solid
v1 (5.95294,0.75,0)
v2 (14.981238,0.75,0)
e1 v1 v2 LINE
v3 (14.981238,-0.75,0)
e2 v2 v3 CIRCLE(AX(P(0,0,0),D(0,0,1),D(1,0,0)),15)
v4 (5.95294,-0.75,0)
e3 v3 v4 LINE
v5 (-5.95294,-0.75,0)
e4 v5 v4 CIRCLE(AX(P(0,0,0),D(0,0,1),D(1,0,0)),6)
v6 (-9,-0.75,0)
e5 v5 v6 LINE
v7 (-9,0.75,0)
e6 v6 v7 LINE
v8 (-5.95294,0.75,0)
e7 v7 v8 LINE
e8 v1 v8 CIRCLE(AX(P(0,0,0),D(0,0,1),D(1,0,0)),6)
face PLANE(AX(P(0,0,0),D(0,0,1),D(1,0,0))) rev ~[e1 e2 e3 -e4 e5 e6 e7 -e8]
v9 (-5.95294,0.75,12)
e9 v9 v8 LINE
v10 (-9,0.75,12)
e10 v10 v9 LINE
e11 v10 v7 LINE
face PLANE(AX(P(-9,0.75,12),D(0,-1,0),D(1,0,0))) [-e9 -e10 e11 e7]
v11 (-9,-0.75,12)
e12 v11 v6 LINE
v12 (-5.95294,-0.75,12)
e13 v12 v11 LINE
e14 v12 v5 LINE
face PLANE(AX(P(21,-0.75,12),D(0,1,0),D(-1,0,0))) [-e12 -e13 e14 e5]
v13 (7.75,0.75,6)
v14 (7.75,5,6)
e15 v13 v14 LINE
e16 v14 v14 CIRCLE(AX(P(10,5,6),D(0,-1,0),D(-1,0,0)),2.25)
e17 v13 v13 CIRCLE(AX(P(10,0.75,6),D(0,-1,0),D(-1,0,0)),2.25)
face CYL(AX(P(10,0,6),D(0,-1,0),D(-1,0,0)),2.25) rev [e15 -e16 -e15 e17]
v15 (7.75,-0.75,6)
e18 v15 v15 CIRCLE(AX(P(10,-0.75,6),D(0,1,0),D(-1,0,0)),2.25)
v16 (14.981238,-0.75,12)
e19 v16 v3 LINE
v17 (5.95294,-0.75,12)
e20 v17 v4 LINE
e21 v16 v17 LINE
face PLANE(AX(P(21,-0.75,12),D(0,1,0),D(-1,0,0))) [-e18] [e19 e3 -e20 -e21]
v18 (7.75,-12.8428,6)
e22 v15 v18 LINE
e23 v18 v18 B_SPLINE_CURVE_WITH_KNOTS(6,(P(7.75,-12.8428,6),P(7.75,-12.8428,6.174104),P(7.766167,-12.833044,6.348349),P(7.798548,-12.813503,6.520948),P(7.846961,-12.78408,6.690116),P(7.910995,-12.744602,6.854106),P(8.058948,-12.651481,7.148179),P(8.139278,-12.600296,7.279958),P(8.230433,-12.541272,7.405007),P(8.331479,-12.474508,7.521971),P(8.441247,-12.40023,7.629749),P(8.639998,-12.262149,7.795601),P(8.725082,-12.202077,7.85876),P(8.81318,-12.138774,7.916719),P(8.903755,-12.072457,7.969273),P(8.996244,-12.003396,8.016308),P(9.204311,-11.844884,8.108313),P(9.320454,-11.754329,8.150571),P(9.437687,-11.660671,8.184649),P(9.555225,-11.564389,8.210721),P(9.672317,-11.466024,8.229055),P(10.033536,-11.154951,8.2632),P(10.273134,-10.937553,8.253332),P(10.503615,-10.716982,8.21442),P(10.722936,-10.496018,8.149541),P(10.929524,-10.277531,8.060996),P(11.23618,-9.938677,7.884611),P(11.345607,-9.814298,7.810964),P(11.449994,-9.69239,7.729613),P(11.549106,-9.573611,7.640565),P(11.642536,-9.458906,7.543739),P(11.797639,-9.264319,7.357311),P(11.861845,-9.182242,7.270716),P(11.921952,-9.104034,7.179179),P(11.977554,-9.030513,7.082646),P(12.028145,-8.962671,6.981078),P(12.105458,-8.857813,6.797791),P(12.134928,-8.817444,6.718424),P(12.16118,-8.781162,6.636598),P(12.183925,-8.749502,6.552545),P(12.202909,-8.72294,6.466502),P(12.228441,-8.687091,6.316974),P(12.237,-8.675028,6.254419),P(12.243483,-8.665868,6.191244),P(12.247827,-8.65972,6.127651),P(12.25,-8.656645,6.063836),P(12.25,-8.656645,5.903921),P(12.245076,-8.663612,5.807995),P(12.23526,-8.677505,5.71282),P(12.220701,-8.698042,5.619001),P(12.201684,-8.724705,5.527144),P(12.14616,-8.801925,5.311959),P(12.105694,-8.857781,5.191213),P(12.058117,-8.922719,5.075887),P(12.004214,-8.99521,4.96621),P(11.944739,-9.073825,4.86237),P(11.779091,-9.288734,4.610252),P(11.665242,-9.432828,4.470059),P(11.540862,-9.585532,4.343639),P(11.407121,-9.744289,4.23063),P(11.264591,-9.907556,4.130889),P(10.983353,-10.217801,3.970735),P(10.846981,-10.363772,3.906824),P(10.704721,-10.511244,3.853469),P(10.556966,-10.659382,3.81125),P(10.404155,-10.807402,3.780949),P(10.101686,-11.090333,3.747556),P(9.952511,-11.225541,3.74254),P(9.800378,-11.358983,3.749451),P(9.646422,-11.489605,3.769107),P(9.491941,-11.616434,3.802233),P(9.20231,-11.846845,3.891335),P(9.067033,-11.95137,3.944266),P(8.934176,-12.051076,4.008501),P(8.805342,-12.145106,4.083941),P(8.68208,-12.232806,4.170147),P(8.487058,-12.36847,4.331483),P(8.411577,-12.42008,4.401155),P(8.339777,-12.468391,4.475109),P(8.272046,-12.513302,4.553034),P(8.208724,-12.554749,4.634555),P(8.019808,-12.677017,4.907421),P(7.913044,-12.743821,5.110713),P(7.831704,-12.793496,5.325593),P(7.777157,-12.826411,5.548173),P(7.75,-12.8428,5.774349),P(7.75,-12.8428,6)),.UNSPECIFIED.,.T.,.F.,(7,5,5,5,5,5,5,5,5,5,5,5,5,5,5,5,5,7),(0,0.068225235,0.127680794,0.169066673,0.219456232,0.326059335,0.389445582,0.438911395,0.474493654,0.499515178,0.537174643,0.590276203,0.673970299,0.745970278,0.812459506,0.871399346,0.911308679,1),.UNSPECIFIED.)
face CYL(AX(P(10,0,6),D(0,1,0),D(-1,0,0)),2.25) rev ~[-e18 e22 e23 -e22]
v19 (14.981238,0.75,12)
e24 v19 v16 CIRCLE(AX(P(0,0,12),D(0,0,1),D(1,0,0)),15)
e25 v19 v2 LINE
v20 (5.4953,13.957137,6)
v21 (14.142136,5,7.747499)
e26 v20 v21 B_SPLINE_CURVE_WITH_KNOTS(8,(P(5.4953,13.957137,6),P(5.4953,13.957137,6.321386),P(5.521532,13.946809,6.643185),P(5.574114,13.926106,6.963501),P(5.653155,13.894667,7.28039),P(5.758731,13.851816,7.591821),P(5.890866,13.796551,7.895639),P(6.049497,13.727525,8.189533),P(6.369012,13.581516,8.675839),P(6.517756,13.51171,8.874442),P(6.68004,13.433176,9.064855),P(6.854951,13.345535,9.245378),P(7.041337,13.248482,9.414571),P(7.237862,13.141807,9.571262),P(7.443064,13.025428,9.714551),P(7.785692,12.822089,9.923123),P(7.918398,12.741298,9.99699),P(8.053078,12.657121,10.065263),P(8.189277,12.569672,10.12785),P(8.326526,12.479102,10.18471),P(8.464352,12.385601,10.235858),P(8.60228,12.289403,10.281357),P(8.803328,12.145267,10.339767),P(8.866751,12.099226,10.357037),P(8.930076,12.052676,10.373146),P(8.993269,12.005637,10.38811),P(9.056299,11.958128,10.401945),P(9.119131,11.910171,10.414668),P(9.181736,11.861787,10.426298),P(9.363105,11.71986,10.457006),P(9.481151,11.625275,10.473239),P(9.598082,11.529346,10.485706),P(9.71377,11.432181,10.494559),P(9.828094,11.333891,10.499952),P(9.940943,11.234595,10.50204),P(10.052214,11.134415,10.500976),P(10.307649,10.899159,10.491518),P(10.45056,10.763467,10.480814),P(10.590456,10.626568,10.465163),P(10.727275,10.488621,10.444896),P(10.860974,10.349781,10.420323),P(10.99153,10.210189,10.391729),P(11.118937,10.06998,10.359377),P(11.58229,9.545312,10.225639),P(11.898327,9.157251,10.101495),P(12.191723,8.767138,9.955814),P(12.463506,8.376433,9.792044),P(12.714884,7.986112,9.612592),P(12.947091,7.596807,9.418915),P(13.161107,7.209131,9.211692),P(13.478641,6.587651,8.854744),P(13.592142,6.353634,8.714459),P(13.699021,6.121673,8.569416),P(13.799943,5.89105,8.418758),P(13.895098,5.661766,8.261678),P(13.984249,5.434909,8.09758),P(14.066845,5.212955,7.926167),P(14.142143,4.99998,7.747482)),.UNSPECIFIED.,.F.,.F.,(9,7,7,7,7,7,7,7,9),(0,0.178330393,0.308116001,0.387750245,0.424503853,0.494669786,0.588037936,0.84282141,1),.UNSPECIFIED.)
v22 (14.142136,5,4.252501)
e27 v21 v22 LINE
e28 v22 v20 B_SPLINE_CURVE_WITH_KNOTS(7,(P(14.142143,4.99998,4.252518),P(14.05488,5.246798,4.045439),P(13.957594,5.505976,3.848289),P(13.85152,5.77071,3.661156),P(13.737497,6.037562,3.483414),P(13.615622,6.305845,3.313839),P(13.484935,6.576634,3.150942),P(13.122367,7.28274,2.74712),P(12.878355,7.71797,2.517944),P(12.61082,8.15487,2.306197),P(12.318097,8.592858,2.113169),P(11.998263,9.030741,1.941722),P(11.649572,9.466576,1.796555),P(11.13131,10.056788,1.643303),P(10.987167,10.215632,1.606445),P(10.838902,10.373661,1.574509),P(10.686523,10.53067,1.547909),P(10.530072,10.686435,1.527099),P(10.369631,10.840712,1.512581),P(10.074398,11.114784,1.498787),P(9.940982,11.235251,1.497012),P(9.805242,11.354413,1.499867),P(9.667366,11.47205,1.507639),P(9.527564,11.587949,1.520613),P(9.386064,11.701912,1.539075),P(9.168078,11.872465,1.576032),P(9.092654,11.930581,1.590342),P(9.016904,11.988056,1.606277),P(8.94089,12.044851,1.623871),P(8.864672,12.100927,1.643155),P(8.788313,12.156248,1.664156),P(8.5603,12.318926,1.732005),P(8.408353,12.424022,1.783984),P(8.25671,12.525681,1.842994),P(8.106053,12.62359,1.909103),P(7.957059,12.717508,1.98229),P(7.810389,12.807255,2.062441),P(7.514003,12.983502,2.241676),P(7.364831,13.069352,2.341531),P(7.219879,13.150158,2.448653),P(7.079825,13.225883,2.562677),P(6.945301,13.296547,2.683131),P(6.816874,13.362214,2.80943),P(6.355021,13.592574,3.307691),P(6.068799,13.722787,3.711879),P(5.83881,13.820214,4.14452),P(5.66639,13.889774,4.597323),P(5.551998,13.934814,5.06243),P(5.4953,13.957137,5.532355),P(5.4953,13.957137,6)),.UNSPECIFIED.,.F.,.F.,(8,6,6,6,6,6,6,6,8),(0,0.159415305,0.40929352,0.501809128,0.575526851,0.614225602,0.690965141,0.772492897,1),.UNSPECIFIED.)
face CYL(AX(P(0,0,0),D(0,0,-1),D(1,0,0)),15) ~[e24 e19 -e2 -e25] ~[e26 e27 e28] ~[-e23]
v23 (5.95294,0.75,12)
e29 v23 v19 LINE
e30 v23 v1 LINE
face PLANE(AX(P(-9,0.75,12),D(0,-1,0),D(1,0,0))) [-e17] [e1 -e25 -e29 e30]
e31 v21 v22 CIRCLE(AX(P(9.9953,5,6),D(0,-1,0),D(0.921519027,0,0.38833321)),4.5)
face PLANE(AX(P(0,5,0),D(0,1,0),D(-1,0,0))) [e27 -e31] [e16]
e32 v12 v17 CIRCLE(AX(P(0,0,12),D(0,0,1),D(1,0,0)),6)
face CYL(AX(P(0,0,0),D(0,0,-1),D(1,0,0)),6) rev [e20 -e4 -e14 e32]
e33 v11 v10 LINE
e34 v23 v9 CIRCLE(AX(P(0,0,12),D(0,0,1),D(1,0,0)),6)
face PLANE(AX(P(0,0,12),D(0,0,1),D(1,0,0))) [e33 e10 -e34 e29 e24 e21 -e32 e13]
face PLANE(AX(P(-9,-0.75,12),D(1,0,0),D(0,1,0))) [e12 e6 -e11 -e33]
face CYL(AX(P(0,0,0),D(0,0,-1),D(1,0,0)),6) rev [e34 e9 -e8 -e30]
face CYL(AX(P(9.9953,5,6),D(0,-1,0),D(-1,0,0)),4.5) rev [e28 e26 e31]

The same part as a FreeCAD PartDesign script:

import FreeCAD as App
import Part
import Sketcher
Q = App.Units.Quantity


def add_polygon(sketch, points):
    """Adds a closed chain of lines whose ends are joined by coincident constraints."""
    first, n = sketch.GeometryCount, len(points)
    for a, b in zip(points, points[1:] + points[:1]):
        sketch.addGeometry(Part.LineSegment(App.Vector(*a, 0), App.Vector(*b, 0)), False)
    for i in range(n):
        sketch.addConstraint(Sketcher.Constraint("Coincident", first + i, 2, first + (i + 1) % n, 1))

doc = App.newDocument("Part")
body = doc.addObject("PartDesign::Body", "Body")

sketch1 = body.newObject("Sketcher::SketchObject", "Sketch")
sketch1.AttachmentSupport = (doc.getObject("XY_Plane"), [""])
sketch1.MapMode = "FlatFace"
sketch1.addGeometry(Part.Circle(App.Vector(0, 0, 0), App.Vector(0, 0, 1), 15), False)
sketch1.addGeometry(Part.Circle(App.Vector(0, 0, 0), App.Vector(0, 0, 1), 6), False)
sketch1.addConstraint(Sketcher.Constraint("Coincident", 0, 3, -1, 1))
sketch1.addConstraint(Sketcher.Constraint("Coincident", 1, 3, -1, 1))
sketch1.addConstraint(Sketcher.Constraint("Diameter", 0, Q("30 mm")))
sketch1.addConstraint(Sketcher.Constraint("Diameter", 1, Q("12 mm")))
pad1 = body.newObject("PartDesign::Pad", "Pad")
pad1.Profile = sketch1
pad1.Length = 12

sketch2 = body.newObject("Sketcher::SketchObject", "Sketch001")
sketch2.AttachmentSupport = (doc.getObject("XZ_Plane"), [""])
sketch2.MapMode = "FlatFace"
sketch2.addGeometry(Part.Circle(App.Vector(10, 6, 0), App.Vector(0, 0, 1), 2.2), False)
sketch2.addConstraint(Sketcher.Constraint("Diameter", 0, Q("4.5 mm")))
sketch2.addConstraint(Sketcher.Constraint("DistanceX", -1, 1, 0, 3, Q("10 mm")))
sketch2.addConstraint(Sketcher.Constraint("DistanceY", -1, 1, 0, 3, Q("6 mm")))
pocket1 = body.newObject("PartDesign::Pocket", "Pocket")
pocket1.Profile = sketch2
pocket1.Type = "ThroughAll"
pocket1.Midplane = True

sketch3 = body.newObject("Sketcher::SketchObject", "Sketch002")
sketch3.AttachmentSupport = (doc.getObject("XY_Plane"), [""])
sketch3.MapMode = "FlatFace"
sketch3.AttachmentOffset = App.Placement(App.Vector(0, 0, 12), App.Rotation())
add_polygon(sketch3, [(21, 0.8), (-9, 0.8), (-9, -0.8), (21, -0.8)])
sketch3.addConstraint(Sketcher.Constraint("Horizontal", 0))
sketch3.addConstraint(Sketcher.Constraint("Vertical", 1))
sketch3.addConstraint(Sketcher.Constraint("Horizontal", 2))
sketch3.addConstraint(Sketcher.Constraint("Vertical", 3))
sketch3.addConstraint(Sketcher.Constraint("DistanceX", 0, 2, 0, 1, Q("30 mm")))
sketch3.addConstraint(Sketcher.Constraint("DistanceY", 1, 2, 1, 1, Q("1.5 mm")))
sketch3.addConstraint(Sketcher.Constraint("DistanceX", 0, 2, -1, 1, Q("9 mm")))
sketch3.addConstraint(Sketcher.Constraint("DistanceY", -1, 1, 0, 2, Q("0.75 mm")))
pocket2 = body.newObject("PartDesign::Pocket", "Pocket001")
pocket2.Profile = sketch3
pocket2.Type = "ThroughAll"

sketch4 = body.newObject("Sketcher::SketchObject", "Sketch003")
sketch4.AttachmentSupport = (doc.getObject("XZ_Plane"), [""])
sketch4.MapMode = "FlatFace"
sketch4.AttachmentOffset = App.Placement(App.Vector(0, 0, -5), App.Rotation())
sketch4.addGeometry(Part.Circle(App.Vector(10, 6, 0), App.Vector(0, 0, 1), 4.5), False)
sketch4.addConstraint(Sketcher.Constraint("Diameter", 0, Q("9 mm")))
sketch4.addConstraint(Sketcher.Constraint("DistanceY", -1, 1, 0, 3, Q("6 mm")))
sketch4.addConstraint(Sketcher.Constraint("DistanceX", -1, 1, 0, 3, Q("9.9953 mm")))
pocket3 = body.newObject("PartDesign::Pocket", "Pocket002")
pocket3.Profile = sketch4
pocket3.Type = "ThroughAll"

doc.recompute()
